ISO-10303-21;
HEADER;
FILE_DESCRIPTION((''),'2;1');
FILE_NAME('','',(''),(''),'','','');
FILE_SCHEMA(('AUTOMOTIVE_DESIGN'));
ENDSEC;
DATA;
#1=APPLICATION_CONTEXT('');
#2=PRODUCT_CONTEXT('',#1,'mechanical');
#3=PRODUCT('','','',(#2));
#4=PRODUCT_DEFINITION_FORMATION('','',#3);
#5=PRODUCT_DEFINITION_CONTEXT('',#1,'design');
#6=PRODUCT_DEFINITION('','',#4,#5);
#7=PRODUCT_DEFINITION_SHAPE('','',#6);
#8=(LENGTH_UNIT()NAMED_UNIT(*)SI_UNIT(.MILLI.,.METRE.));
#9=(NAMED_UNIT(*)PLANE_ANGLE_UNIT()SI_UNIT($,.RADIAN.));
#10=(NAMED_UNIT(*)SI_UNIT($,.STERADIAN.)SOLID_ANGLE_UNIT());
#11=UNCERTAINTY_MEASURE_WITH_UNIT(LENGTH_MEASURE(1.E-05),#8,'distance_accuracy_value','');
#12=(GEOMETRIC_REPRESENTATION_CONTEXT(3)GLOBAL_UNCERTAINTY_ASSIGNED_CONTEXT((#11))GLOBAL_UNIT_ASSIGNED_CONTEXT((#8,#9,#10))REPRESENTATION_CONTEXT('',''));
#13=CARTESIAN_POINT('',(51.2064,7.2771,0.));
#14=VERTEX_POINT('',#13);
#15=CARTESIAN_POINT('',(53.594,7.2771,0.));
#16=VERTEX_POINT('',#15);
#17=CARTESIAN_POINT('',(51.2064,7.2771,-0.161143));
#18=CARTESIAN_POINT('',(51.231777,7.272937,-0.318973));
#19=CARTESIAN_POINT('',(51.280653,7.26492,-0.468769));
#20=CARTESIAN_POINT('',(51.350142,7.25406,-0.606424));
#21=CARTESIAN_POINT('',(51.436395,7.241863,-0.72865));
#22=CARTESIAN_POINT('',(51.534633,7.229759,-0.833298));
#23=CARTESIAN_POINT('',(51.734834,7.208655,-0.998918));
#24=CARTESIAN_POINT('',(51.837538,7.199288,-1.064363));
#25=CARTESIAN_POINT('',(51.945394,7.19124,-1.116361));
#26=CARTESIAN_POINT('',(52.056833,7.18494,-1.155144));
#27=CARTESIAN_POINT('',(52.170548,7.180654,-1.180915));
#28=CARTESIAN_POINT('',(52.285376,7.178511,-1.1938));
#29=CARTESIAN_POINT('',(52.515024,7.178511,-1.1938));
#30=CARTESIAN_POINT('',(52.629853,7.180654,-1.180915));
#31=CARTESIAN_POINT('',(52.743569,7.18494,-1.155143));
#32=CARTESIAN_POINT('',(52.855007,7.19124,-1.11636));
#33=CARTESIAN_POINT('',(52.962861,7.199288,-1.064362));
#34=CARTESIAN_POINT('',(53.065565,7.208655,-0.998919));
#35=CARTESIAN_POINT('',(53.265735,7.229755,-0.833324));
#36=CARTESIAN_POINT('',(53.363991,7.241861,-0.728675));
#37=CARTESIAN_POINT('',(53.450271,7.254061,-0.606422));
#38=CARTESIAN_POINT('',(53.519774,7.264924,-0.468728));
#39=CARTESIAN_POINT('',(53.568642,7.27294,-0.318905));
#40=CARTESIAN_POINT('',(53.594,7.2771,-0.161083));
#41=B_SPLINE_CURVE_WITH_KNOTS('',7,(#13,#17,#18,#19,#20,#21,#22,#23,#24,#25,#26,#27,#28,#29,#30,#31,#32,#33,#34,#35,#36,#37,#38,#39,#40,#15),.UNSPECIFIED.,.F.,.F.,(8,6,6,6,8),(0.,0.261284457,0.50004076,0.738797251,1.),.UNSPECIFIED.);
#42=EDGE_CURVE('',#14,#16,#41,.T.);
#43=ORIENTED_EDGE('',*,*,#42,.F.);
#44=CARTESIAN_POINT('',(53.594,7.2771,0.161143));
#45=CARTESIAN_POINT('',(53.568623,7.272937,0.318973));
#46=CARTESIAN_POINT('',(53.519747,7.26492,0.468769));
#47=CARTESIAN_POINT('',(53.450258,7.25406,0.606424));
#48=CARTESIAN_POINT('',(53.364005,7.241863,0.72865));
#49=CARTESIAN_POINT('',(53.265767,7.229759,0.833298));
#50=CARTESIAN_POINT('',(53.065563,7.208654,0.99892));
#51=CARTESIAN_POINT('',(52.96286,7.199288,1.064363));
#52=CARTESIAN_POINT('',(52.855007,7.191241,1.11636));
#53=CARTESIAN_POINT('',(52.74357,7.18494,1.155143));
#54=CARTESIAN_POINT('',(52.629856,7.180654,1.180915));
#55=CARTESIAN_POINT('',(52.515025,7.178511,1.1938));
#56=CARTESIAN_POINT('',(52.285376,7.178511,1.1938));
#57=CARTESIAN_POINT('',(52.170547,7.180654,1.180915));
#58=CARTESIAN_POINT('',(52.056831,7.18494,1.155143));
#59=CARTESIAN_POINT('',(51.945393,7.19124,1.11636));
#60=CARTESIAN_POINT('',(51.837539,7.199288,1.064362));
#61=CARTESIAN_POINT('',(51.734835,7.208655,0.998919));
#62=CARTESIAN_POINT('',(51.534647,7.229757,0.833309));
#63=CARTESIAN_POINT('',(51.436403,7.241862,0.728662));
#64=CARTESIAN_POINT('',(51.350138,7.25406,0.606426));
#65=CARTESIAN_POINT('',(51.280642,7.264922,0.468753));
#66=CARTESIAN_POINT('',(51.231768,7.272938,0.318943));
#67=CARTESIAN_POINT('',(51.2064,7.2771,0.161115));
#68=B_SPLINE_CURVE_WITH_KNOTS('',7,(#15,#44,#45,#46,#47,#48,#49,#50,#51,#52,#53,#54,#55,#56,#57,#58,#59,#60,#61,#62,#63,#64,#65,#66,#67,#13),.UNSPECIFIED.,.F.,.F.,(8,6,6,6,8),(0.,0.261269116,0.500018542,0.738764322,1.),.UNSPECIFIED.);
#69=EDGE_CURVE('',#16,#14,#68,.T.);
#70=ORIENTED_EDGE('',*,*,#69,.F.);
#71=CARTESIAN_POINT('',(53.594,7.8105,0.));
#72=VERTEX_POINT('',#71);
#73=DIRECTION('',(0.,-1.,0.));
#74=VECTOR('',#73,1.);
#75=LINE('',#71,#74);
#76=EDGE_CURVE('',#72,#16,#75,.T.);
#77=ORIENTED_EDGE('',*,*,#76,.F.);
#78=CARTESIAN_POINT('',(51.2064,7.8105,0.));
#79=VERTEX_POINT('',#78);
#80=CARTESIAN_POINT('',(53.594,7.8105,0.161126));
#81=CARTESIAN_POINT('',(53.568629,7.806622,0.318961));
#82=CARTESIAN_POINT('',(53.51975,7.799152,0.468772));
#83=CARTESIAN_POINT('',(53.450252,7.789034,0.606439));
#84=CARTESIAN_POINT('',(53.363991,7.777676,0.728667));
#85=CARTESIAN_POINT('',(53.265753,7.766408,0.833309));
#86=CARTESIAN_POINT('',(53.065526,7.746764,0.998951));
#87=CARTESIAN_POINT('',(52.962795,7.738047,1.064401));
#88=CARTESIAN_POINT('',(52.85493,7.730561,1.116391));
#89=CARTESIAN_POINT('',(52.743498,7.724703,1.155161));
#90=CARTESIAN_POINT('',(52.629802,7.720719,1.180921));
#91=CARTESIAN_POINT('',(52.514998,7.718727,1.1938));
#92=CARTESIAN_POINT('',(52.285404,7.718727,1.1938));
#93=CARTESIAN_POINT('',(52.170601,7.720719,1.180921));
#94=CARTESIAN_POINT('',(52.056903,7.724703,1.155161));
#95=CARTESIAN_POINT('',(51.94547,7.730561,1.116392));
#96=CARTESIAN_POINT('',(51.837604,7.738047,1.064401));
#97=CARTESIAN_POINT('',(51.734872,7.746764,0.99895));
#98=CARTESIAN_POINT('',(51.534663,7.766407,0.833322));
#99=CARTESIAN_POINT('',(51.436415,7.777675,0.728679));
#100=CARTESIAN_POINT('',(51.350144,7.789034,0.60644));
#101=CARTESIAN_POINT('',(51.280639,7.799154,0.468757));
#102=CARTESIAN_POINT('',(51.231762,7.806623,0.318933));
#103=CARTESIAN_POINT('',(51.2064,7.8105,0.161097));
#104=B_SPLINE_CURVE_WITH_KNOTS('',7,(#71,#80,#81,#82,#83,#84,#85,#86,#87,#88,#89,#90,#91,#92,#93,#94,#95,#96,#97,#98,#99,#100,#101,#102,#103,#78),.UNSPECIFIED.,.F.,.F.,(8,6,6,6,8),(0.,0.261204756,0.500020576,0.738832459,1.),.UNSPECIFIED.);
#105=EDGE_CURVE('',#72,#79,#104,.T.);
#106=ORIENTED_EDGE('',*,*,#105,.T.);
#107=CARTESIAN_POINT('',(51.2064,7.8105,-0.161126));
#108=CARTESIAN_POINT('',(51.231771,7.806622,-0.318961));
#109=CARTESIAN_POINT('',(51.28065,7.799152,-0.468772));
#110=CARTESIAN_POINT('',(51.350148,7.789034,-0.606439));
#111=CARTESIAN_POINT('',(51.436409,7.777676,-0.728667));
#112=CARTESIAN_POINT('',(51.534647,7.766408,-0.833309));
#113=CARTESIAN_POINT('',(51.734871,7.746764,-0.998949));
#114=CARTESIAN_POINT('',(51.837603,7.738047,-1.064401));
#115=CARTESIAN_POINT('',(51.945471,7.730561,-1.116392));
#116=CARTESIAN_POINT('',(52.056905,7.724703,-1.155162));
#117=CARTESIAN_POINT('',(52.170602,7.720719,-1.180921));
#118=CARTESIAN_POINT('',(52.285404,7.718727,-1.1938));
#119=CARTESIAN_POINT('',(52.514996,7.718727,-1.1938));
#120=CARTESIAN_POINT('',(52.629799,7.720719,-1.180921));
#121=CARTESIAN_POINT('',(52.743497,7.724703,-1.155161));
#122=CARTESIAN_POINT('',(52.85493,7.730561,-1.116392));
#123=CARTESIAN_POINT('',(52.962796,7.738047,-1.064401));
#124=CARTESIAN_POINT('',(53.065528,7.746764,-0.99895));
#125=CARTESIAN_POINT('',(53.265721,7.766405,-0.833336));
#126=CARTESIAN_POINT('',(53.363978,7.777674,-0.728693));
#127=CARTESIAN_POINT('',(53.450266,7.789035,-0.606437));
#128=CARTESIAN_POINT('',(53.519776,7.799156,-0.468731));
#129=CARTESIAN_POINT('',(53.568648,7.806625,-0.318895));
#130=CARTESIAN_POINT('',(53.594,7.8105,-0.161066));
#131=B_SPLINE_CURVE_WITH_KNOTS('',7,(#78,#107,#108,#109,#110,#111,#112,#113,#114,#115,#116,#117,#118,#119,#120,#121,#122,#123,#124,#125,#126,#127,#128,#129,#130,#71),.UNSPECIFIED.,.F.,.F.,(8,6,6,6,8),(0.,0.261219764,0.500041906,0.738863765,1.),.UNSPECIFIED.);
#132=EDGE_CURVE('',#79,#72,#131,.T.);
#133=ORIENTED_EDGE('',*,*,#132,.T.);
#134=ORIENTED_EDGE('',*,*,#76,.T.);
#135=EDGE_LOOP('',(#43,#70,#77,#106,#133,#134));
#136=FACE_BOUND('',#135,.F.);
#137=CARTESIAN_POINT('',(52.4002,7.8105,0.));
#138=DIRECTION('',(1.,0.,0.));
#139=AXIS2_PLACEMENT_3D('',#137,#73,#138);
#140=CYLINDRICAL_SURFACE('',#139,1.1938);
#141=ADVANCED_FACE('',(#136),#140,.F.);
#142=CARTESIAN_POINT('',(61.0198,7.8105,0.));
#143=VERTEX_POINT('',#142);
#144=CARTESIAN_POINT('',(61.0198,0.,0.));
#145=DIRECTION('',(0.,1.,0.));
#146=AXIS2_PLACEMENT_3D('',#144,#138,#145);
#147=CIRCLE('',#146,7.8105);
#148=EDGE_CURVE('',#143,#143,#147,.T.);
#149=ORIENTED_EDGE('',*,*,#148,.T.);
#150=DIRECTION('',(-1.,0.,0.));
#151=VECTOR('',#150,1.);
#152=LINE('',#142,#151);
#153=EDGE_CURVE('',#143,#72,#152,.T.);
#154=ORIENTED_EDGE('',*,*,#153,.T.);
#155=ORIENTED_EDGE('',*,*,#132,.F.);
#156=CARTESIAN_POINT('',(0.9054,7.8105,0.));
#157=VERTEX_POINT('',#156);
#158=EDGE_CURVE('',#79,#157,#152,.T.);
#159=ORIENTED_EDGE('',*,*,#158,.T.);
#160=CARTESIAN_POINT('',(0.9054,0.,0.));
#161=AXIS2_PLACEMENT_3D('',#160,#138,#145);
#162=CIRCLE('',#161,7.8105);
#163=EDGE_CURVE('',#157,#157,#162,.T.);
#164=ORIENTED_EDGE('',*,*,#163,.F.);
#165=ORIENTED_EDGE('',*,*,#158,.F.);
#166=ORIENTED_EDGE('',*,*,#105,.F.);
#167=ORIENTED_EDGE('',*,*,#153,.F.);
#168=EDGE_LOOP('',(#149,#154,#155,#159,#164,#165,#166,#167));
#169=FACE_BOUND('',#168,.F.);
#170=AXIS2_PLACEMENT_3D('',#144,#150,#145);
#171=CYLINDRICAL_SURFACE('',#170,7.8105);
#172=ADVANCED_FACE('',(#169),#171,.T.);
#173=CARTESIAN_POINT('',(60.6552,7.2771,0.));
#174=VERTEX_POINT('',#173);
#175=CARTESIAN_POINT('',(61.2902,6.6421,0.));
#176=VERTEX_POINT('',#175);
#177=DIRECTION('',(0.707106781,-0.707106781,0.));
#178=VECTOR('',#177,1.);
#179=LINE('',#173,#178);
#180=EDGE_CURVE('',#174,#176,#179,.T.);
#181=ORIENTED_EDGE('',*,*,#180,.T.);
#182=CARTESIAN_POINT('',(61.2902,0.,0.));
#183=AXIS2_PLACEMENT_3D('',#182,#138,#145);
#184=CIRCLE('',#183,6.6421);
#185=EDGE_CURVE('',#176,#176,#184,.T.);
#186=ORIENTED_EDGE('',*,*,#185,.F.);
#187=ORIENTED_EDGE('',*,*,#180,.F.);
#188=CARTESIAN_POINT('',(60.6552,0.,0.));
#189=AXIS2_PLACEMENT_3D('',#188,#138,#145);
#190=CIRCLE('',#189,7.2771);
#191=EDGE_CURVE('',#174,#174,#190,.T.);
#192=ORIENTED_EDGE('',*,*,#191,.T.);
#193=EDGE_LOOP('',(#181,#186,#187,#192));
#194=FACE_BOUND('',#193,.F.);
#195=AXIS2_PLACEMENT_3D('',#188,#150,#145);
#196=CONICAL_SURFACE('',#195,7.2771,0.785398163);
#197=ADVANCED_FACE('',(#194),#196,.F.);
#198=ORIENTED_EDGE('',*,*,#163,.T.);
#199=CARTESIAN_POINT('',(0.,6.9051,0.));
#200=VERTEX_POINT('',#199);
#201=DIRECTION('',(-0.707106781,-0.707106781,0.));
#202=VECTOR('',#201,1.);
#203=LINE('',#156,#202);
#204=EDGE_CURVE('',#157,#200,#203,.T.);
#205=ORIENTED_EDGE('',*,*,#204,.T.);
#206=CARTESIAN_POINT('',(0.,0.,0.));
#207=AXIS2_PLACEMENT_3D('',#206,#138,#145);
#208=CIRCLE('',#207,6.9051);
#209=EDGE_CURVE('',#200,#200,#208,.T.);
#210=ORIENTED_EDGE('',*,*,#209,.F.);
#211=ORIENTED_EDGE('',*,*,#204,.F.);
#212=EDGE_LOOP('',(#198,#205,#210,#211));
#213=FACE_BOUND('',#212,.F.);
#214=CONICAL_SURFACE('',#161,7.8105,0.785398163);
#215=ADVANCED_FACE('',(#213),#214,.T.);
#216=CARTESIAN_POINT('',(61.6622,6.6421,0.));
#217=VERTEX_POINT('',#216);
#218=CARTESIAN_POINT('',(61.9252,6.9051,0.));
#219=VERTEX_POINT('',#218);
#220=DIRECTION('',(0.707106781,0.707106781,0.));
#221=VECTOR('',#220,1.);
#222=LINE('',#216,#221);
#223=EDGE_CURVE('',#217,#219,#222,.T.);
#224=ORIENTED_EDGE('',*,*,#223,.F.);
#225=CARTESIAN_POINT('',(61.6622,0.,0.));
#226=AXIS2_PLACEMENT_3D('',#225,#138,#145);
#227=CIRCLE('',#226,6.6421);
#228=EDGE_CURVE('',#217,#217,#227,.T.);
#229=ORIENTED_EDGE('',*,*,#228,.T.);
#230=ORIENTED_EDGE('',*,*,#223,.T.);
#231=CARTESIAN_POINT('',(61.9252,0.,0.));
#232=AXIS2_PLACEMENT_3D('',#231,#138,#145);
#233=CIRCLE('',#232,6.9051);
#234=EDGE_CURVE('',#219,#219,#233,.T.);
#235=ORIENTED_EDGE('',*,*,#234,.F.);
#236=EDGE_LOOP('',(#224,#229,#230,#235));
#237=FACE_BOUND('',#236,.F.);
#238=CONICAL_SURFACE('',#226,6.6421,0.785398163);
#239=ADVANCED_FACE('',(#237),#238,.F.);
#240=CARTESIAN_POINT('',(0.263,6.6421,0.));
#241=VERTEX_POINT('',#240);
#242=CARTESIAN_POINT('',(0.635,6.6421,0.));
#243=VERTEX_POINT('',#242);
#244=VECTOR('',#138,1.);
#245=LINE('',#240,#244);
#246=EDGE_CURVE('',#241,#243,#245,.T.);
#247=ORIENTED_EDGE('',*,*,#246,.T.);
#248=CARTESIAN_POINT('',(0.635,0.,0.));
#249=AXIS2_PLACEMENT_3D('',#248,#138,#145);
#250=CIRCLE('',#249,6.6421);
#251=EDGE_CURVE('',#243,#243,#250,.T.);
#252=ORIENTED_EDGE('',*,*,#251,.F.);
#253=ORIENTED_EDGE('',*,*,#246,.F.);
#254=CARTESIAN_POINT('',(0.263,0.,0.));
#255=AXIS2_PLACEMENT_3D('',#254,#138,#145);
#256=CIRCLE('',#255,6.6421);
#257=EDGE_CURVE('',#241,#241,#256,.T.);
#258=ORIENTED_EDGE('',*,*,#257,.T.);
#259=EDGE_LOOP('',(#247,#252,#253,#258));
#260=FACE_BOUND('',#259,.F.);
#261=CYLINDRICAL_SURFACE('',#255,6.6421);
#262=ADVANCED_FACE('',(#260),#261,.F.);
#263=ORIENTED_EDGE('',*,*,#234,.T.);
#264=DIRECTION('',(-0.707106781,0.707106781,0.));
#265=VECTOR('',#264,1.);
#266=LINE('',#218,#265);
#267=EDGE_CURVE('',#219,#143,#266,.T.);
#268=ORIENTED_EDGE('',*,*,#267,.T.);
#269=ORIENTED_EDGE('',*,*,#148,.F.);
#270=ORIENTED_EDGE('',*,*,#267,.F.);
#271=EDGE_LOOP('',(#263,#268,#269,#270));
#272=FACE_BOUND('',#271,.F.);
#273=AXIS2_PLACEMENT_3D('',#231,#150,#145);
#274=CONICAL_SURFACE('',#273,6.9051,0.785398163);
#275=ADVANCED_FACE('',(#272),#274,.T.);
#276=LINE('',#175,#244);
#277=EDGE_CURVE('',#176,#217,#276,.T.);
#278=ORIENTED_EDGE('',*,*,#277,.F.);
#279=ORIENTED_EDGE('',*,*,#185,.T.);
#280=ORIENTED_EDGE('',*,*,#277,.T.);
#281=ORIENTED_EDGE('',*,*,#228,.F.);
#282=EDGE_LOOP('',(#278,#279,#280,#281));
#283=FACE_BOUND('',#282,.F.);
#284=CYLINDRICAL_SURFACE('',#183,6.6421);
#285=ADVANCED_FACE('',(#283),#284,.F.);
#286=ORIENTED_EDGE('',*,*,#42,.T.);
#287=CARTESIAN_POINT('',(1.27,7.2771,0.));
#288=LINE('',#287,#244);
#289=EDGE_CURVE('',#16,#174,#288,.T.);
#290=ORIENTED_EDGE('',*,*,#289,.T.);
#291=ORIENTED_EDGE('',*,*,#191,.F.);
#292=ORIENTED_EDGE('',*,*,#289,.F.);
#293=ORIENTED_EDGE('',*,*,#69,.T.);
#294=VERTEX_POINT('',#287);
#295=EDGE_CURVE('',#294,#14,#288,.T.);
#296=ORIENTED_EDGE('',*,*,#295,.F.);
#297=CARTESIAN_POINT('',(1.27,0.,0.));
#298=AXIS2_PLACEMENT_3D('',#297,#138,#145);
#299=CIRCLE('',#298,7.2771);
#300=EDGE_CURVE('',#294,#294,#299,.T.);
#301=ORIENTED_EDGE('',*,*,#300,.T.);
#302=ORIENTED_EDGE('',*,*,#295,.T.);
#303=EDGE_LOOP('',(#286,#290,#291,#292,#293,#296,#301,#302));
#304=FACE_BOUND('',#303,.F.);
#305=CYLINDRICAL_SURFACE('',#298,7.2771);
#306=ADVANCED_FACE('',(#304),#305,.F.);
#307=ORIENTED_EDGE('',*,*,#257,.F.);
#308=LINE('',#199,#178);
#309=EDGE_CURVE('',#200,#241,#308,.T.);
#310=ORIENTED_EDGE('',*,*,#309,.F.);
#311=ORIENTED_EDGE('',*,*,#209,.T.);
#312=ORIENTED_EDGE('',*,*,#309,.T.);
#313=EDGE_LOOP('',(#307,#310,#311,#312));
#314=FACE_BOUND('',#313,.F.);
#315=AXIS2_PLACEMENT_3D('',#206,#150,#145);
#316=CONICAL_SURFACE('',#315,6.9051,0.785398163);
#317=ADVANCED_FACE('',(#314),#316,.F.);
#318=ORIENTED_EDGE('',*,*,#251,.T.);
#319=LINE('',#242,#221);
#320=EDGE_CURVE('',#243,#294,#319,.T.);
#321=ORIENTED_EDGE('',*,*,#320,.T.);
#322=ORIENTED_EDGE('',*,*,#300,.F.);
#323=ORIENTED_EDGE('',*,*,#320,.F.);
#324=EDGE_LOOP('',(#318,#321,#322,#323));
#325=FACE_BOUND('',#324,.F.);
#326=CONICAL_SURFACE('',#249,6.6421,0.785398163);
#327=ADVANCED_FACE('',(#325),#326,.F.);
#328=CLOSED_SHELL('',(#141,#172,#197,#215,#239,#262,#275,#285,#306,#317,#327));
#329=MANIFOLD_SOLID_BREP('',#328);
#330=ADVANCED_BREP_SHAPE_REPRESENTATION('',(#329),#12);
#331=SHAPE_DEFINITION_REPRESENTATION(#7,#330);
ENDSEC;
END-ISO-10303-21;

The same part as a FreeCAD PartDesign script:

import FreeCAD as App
import Part
import Sketcher

V = App.Vector
Q = App.Units.Quantity


def add_polygon(sketch, points):
    """Adds a closed chain of lines whose ends are joined by coincident constraints."""
    first, n = sketch.GeometryCount, len(points)
    for a, b in zip(points, points[1:] + points[:1]):
        sketch.addGeometry(Part.LineSegment(App.Vector(*a, 0), App.Vector(*b, 0)), False)
    for i in range(n):
        sketch.addConstraint(Sketcher.Constraint("Coincident", first + i, 2, first + (i + 1) % n, 1))

doc = App.newDocument("Part")
body = doc.addObject("PartDesign::Body", "Body")

# Sketch on XY plane
sketch1 = body.newObject("Sketcher::SketchObject", "Sketch")
sketch1.AttachmentSupport = (doc.getObject("XY_Plane"), [""])
sketch1.MapMode = "FlatFace"
add_polygon(sketch1, [(0.9054, 7.8105), (0, 6.9051), (0.263, 6.6421), (0.635, 6.6421), (1.27, 7.2771), (60.6552, 7.2771), (61.2902, 6.6421), (61.6622, 6.6421), (61.9252, 6.9051), (61.0198, 7.8105)])  # lines 0-9
sketch1.addConstraint([
    Sketcher.Constraint("Horizontal", 2),
    Sketcher.Constraint("Horizontal", 4),
    Sketcher.Constraint("Horizontal", 6),
    Sketcher.Constraint("Horizontal", 9),
    Sketcher.Constraint("PointOnObject", 0, 2, -2),
    Sketcher.Constraint("Perpendicular", 0, 1),
    Sketcher.Constraint("Perpendicular", 1, 3),
    Sketcher.Constraint("Perpendicular", 3, 5),
    Sketcher.Constraint("Perpendicular", 5, 7),
    Sketcher.Constraint("Perpendicular", 7, 8),
    Sketcher.Constraint("Horizontal", 2, 2, 5, 2),
    Sketcher.Constraint("Horizontal", 0, 2, 7, 2),
    Sketcher.Constraint("Equal", 2, 6),
    Sketcher.Constraint("Equal", 3, 5),
    Sketcher.Constraint("DistanceX", 4, 1, 4, 2, Q("2.338 in")),
    Sketcher.Constraint("DistanceX", -1, 1, 3, 2, Q("0.05 in")),
    Sketcher.Constraint("DistanceX", 9, 2, 9, 1, Q("2.3667 in")),
    Sketcher.Constraint("DistanceX", -1, 1, 2, 2, Q("0.025 in")),
    Sketcher.Constraint("DistanceY", 4, 2, 8, 2, Q("0.021 in")),
    Sketcher.Constraint("DistanceY", -1, 1, 1, 2, Q("0.2615 in")),
])
revolution = body.newObject("PartDesign::Revolution", "Revolution")
revolution.Profile = sketch1
revolution.ReferenceAxis = (sketch1, ["H_Axis"])
revolution.Angle = 360

# Sketch on XY plane
sketch2 = body.newObject("Sketcher::SketchObject", "Sketch001")
sketch2.AttachmentSupport = (doc.getObject("XY_Plane"), [""])
sketch2.MapMode = "FlatFace"
add_polygon(sketch2, [(52.4002, 7.8105), (52.4002, 0), (53.594, 0), (53.594, 7.8105)])  # lines 0-3
sketch2.addGeometry(Part.LineSegment(V(52.4002, 7.8105, 0), V(52.4002, 0, 0)), True)  # axis
sketch2.addConstraint([
    Sketcher.Constraint("Vertical", 0),
    Sketcher.Constraint("Horizontal", 1),
    Sketcher.Constraint("Vertical", 2),
    Sketcher.Constraint("Horizontal", 3),
    Sketcher.Constraint("Vertical", 4),
    Sketcher.Constraint("Coincident", 4, 1, 3, 2),
    Sketcher.Constraint("PointOnObject", 0, 2, -1),
    Sketcher.Constraint("PointOnObject", 4, 2, -1),
    Sketcher.Constraint("DistanceX", 1, 1, 1, 2, Q("0.047 in")),
    Sketcher.Constraint("DistanceX", -1, 1, 1, 2, Q("2.11 in")),
    Sketcher.Constraint("DistanceY", 0, 2, 0, 1, Q("0.3075 in")),
])
groove = body.newObject("PartDesign::Groove", "Groove")
groove.Profile = sketch2
groove.ReferenceAxis = (sketch2, ["Axis0"])
groove.Angle = 360

doc.recompute()
